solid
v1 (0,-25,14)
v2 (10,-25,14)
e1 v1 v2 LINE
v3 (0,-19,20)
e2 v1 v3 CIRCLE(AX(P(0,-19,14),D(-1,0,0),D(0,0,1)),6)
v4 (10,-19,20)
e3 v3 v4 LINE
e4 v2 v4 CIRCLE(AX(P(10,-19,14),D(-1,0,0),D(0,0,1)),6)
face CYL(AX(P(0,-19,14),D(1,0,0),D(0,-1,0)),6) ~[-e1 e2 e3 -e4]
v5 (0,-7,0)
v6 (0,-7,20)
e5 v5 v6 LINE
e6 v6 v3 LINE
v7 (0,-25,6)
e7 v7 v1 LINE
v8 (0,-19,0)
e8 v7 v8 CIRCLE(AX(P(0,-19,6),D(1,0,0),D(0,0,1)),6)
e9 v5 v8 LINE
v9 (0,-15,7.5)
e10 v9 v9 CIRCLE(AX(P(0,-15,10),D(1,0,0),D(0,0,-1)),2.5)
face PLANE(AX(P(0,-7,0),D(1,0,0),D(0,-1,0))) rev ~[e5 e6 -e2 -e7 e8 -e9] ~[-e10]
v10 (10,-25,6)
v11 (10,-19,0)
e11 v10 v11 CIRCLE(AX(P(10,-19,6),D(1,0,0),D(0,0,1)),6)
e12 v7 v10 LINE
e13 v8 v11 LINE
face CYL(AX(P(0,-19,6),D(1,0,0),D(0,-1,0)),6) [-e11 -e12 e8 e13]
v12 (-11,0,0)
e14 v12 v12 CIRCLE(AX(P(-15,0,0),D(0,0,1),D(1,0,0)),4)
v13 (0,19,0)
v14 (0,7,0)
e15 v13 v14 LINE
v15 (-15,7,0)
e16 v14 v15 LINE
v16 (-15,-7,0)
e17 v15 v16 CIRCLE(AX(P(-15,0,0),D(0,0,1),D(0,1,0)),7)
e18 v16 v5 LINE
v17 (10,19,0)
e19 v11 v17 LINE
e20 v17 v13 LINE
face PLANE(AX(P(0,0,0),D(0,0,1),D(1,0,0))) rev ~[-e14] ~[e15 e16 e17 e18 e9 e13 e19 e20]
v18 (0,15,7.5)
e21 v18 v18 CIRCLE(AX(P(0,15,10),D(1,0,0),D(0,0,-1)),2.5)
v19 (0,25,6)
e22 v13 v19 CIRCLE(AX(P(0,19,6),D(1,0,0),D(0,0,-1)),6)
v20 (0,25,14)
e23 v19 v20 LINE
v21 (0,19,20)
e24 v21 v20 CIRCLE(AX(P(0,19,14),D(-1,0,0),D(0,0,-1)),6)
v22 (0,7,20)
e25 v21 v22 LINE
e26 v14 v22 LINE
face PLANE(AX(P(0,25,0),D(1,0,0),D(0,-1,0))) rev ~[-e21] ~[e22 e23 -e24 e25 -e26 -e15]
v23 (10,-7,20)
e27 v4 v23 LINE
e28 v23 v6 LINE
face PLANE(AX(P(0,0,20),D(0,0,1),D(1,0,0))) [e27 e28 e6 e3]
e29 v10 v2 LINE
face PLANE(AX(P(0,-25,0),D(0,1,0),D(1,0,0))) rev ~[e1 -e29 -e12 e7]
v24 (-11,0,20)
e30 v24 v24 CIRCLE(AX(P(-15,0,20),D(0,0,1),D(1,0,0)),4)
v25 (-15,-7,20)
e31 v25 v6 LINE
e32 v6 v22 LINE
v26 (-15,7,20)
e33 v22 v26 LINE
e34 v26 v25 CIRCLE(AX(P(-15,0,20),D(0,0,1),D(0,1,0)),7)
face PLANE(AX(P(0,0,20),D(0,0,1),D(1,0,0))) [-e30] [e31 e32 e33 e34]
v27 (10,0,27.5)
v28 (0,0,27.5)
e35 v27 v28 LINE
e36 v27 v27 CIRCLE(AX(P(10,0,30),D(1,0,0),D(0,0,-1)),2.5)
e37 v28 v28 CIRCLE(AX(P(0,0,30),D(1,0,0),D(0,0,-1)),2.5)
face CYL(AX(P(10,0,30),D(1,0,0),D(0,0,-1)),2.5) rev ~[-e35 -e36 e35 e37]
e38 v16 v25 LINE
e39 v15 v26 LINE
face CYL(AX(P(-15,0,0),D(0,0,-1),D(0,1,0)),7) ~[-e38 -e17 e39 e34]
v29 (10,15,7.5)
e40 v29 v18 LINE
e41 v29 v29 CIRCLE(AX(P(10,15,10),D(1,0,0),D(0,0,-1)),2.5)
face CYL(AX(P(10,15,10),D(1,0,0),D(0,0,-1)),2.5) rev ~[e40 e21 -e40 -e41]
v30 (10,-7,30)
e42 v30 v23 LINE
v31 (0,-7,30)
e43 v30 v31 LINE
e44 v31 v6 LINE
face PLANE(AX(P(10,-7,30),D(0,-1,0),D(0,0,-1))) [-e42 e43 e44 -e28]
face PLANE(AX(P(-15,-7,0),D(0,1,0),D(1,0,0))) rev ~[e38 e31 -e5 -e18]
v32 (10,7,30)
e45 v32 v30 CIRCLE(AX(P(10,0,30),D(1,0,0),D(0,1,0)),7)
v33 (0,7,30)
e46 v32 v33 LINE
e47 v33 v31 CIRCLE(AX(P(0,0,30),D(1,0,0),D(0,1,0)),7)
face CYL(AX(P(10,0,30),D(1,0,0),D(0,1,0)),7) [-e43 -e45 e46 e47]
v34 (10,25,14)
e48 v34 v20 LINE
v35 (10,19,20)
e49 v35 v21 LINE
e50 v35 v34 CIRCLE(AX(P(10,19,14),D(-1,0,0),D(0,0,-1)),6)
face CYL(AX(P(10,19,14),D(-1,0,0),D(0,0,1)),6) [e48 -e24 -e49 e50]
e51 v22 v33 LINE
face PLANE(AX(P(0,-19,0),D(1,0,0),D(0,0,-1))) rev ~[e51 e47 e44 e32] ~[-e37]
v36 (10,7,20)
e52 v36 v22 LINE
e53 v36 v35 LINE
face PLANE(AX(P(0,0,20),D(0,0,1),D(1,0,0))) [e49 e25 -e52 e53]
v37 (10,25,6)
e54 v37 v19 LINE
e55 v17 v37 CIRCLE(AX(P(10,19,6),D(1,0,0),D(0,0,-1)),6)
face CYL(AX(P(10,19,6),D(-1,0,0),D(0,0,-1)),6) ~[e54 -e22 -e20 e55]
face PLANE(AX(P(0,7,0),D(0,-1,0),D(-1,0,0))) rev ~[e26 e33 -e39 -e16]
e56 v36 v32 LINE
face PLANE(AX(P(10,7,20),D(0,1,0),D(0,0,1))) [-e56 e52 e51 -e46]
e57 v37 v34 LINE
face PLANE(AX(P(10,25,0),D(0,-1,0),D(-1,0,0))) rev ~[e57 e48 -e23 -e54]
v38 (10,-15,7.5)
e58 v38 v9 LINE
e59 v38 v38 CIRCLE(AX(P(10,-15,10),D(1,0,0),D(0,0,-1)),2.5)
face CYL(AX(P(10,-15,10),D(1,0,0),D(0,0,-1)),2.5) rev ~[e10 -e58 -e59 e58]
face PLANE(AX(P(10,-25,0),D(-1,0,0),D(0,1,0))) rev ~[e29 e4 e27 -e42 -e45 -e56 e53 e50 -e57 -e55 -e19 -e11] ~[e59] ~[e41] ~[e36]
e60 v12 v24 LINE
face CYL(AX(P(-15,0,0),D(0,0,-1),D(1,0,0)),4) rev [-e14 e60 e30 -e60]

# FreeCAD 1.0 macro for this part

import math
import FreeCAD as App
import Part
import Sketcher
from FreeCAD import Vector
Q = App.Units.Quantity


def edges_at(feature, points):
    """Names of the edges that pass closest to the given points."""
    edges = feature.Shape.Edges
    near = lambda p: min(range(len(edges)), key=lambda i: edges[i].distToShape(Part.Vertex(*p))[0])
    return sorted({f"Edge{near(p) + 1}" for p in points})

doc = App.newDocument("Part")
params = doc.addObject("Spreadsheet::Sheet", "Params")
for row, (alias, value) in enumerate([
    ("sketch1_diameter", "8 mm"),
    ("sketch1_radius", "7 mm"),
    ("sketch1_width", "10 mm"),
    ("sketch1_width2", "15 mm"),
    ("sketch1_height", "50 mm"),
    ("pad1_length", "20 mm"),
    ("sketch2_diameter", "5 mm"),
    ("fillet_radius", "6 mm"),
    ("sketch3_diameter", "5 mm"),
    ("sketch3_radius", "7 mm"),
    ("sketch3_height", "10 mm"),
    ("pad2_length", "10 mm"),
], start=1):
    params.set(f"A{row}", alias)
    params.set(f"B{row}", "=" + value)
    params.setAlias(f"B{row}", alias)

body = doc.addObject("PartDesign::Body", "Body")

# Sketch on XY plane
sketch1 = body.newObject("Sketcher::SketchObject", "Sketch")
sketch1.AttachmentSupport = (doc.getObject("XY_Plane"), [""])
sketch1.MapMode = "FlatFace"
sketch1.addGeometry([
    Part.LineSegment(Vector(10, -25, 0), Vector(10, 25, 0)),  # 0
    Part.LineSegment(Vector(10, 25, 0), Vector(0, 25, 0)),  # 1
    Part.LineSegment(Vector(0, 25, 0), Vector(0, 7, 0)),  # 2
    Part.LineSegment(Vector(0, 7, 0), Vector(-15, 7, 0)),  # 3
    Part.ArcOfCircle(Part.Circle(Vector(-15, 0, 0), Vector(0, 0, 1), 7), math.radians(90), math.radians(270)),  # 4
    Part.LineSegment(Vector(-15, -7, 0), Vector(0, -7, 0)),  # 5
    Part.LineSegment(Vector(0, -7, 0), Vector(0, -25, 0)),  # 6
    Part.LineSegment(Vector(0, -25, 0), Vector(10, -25, 0)),  # 7
    Part.Circle(Vector(-15, 0, 0), Vector(0, 0, 1), 4),  # 8
], False)
sketch1.addConstraint([
    Sketcher.Constraint("Coincident", 0, 2, 1, 1),
    Sketcher.Constraint("Coincident", 1, 2, 2, 1),
    Sketcher.Constraint("Coincident", 2, 2, 3, 1),
    Sketcher.Constraint("Tangent", 3, 2, 4, 1),
    Sketcher.Constraint("Tangent", 4, 2, 5, 1),
    Sketcher.Constraint("Coincident", 5, 2, 6, 1),
    Sketcher.Constraint("Coincident", 6, 2, 7, 1),
    Sketcher.Constraint("Coincident", 7, 2, 0, 1),
    Sketcher.Constraint("Vertical", 0),
    Sketcher.Constraint("Horizontal", 1),
    Sketcher.Constraint("Vertical", 2),
    Sketcher.Constraint("Horizontal", 3),
    Sketcher.Constraint("Horizontal", 5),
    Sketcher.Constraint("Vertical", 6),
    Sketcher.Constraint("Horizontal", 7),
    Sketcher.Constraint("Coincident", 8, 3, 4, 3),
    Sketcher.Constraint("Symmetric", 2, 2, 5, 2, -1, 1),
    Sketcher.Constraint("Symmetric", 1, 2, 6, 2, -1),
    Sketcher.Constraint("Diameter", 8, Q("8 mm")),
    Sketcher.Constraint("Radius", 4, Q("7 mm")),
    Sketcher.Constraint("DistanceX", 1, 2, 1, 1, Q("10 mm")),
    Sketcher.Constraint("DistanceX", 3, 2, 3, 1, Q("15 mm")),
    Sketcher.Constraint("DistanceY", 0, 1, 0, 2, Q("50 mm")),
])
sketch1.setExpression("Constraints[18]", "Params.sketch1_diameter")
sketch1.setExpression("Constraints[19]", "Params.sketch1_radius")
sketch1.setExpression("Constraints[20]", "Params.sketch1_width")
sketch1.setExpression("Constraints[21]", "Params.sketch1_width2")
sketch1.setExpression("Constraints[22]", "Params.sketch1_height")
pad1 = body.newObject("PartDesign::Pad", "Pad")
pad1.Profile = sketch1
pad1.setExpression("Length", "Params.pad1_length")

# Sketch on YZ plane
sketch2 = body.newObject("Sketcher::SketchObject", "Sketch001")
sketch2.AttachmentSupport = (doc.getObject("YZ_Plane"), [""])
sketch2.MapMode = "FlatFace"
sketch2.AttachmentOffset = App.Placement(Vector(0, 0, 10), App.Rotation())
sketch2.addGeometry([
    Part.Circle(Vector(15, 10, 0), Vector(0, 0, 1), 2.5),
    Part.Circle(Vector(-15, 10, 0), Vector(0, 0, 1), 2.5),
], False)
sketch2.addConstraint([
    Sketcher.Constraint("Equal", 0, 1),
    Sketcher.Constraint("Symmetric", 0, 3, 1, 3, -2),
    Sketcher.Constraint("Diameter", 0, Q("5 mm")),
    Sketcher.Constraint("DistanceY", -1, 1, 0, 3, Q("10 mm")),
    Sketcher.Constraint("DistanceX", -1, 1, 0, 3, Q("15 mm")),
])
sketch2.setExpression("Constraints[2]", "Params.sketch2_diameter")
pocket1 = body.newObject("PartDesign::Pocket", "Pocket")
pocket1.Profile = sketch2
pocket1.Type = "ThroughAll"
doc.recompute()

fillet = body.newObject("PartDesign::Fillet", "Fillet")
fillet.Base = (pocket1, edges_at(pocket1, [
    (5, 25, 20),
    (5, 25, 0),
    (5, -25, 20),
    (5, -25, 0),
]))
fillet.setExpression("Radius", "Params.fillet_radius")

# Sketch on YZ plane
sketch3 = body.newObject("Sketcher::SketchObject", "Sketch002")
sketch3.AttachmentSupport = (doc.getObject("YZ_Plane"), [""])
sketch3.MapMode = "FlatFace"
sketch3.AttachmentOffset = App.Placement(Vector(0, 0, 10), App.Rotation())
sketch3.addGeometry([
    Part.ArcOfCircle(Part.Circle(Vector(0, 20, 0), Vector(0, 0, 1), 7), math.radians(180), math.radians(360)),  # 0
    Part.LineSegment(Vector(7, 20, 0), Vector(7, 30, 0)),  # 1
    Part.ArcOfCircle(Part.Circle(Vector(0, 30, 0), Vector(0, 0, 1), 7), math.radians(0), math.radians(180)),  # 2
    Part.LineSegment(Vector(-7, 30, 0), Vector(-7, 20, 0)),  # 3
    Part.Circle(Vector(0, 30, 0), Vector(0, 0, 1), 2.5),  # 4
], False)
sketch3.addConstraint([
    Sketcher.Constraint("Tangent", 0, 2, 1, 1),
    Sketcher.Constraint("Tangent", 1, 2, 2, 1),
    Sketcher.Constraint("Tangent", 2, 2, 3, 1),
    Sketcher.Constraint("Tangent", 3, 2, 0, 1),
    Sketcher.Constraint("Vertical", 1),
    Sketcher.Constraint("Vertical", 3),
    Sketcher.Constraint("Coincident", 4, 3, 2, 3),
    Sketcher.Constraint("PointOnObject", 0, 3, -2),
    Sketcher.Constraint("Diameter", 4, Q("5 mm")),
    Sketcher.Constraint("Radius", 0, Q("7 mm")),
    Sketcher.Constraint("DistanceY", 1, 1, 1, 2, Q("10 mm")),
    Sketcher.Constraint("DistanceY", -1, 1, 0, 3, Q("20 mm")),
])
sketch3.setExpression("Constraints[8]", "Params.sketch3_diameter")
sketch3.setExpression("Constraints[9]", "Params.sketch3_radius")
sketch3.setExpression("Constraints[10]", "Params.sketch3_height")
pad2 = body.newObject("PartDesign::Pad", "Pad001")
pad2.Profile = sketch3
pad2.setExpression("Length", "Params.pad2_length")
pad2.Reversed = True

doc.recompute()
